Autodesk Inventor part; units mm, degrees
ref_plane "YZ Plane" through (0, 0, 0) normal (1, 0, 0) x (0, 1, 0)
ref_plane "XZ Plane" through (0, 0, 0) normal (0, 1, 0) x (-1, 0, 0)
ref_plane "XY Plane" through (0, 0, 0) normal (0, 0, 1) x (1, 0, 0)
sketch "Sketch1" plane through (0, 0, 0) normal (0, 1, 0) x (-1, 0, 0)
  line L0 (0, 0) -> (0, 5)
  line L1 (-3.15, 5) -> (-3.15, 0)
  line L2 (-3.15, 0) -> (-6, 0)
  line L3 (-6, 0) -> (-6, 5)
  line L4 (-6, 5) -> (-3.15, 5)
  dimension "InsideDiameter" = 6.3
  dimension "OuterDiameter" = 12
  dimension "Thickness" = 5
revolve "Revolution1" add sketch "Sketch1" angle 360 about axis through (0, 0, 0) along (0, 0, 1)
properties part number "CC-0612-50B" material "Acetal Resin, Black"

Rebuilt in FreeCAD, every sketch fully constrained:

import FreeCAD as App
import Part
import Sketcher

V = App.Vector
Q = App.Units.Quantity

doc = App.newDocument("Part")
params = doc.addObject("Spreadsheet::Sheet", "Params")
for row, (alias, value) in enumerate([
    ("sketch1_height", "5 mm"),
    ("sketch1_width", "2.85 mm"),
    ("revolution_angle", "360 deg"),
], start=1):
    params.set(f"A{row}", alias)
    params.set(f"B{row}", "=" + value)
    params.setAlias(f"B{row}", alias)

body = doc.addObject("PartDesign::Body", "Body")

# Sketch on XZ plane
sketch1 = body.newObject("Sketcher::SketchObject", "Sketch")
sketch1.AttachmentSupport = (doc.getObject("XZ_Plane"), [""])
sketch1.MapMode = "FlatFace"
sketch1.addGeometry(Part.LineSegment(V(3.1, 0, 0), V(3.1, 5, 0)), False)
sketch1.addGeometry(Part.LineSegment(V(3.1, 5, 0), V(6, 5, 0)), False)
sketch1.addGeometry(Part.LineSegment(V(6, 5, 0), V(6, 0, 0)), False)
sketch1.addGeometry(Part.LineSegment(V(6, 0, 0), V(3.1, 0, 0)), False)
sketch1.addConstraint(Sketcher.Constraint("Coincident", 0, 2, 1, 1))
sketch1.addConstraint(Sketcher.Constraint("Coincident", 1, 2, 2, 1))
sketch1.addConstraint(Sketcher.Constraint("Coincident", 2, 2, 3, 1))
sketch1.addConstraint(Sketcher.Constraint("Coincident", 3, 2, 0, 1))
sketch1.addConstraint(Sketcher.Constraint("Vertical", 0))
sketch1.addConstraint(Sketcher.Constraint("Horizontal", 1))
sketch1.addConstraint(Sketcher.Constraint("Vertical", 2))
sketch1.addConstraint(Sketcher.Constraint("Horizontal", 3))
sketch1.addConstraint(Sketcher.Constraint("PointOnObject", 2, 2, -1))
sketch1.addConstraint(Sketcher.Constraint("DistanceY", 0, 1, 0, 2, Q("5 mm")))
sketch1.addConstraint(Sketcher.Constraint("DistanceX", -1, 1, 1, 2, Q("6 mm")))
sketch1.addConstraint(Sketcher.Constraint("DistanceX", 1, 1, 1, 2, Q("2.85 mm")))
sketch1.setExpression("Constraints[9]", "Params.sketch1_height")
sketch1.setExpression("Constraints[11]", "Params.sketch1_width")
revolution = body.newObject("PartDesign::Revolution", "Revolution")
revolution.Profile = sketch1
revolution.ReferenceAxis = (sketch1, ["V_Axis"])
revolution.setExpression("Angle", "Params.revolution_angle")

doc.recompute()
